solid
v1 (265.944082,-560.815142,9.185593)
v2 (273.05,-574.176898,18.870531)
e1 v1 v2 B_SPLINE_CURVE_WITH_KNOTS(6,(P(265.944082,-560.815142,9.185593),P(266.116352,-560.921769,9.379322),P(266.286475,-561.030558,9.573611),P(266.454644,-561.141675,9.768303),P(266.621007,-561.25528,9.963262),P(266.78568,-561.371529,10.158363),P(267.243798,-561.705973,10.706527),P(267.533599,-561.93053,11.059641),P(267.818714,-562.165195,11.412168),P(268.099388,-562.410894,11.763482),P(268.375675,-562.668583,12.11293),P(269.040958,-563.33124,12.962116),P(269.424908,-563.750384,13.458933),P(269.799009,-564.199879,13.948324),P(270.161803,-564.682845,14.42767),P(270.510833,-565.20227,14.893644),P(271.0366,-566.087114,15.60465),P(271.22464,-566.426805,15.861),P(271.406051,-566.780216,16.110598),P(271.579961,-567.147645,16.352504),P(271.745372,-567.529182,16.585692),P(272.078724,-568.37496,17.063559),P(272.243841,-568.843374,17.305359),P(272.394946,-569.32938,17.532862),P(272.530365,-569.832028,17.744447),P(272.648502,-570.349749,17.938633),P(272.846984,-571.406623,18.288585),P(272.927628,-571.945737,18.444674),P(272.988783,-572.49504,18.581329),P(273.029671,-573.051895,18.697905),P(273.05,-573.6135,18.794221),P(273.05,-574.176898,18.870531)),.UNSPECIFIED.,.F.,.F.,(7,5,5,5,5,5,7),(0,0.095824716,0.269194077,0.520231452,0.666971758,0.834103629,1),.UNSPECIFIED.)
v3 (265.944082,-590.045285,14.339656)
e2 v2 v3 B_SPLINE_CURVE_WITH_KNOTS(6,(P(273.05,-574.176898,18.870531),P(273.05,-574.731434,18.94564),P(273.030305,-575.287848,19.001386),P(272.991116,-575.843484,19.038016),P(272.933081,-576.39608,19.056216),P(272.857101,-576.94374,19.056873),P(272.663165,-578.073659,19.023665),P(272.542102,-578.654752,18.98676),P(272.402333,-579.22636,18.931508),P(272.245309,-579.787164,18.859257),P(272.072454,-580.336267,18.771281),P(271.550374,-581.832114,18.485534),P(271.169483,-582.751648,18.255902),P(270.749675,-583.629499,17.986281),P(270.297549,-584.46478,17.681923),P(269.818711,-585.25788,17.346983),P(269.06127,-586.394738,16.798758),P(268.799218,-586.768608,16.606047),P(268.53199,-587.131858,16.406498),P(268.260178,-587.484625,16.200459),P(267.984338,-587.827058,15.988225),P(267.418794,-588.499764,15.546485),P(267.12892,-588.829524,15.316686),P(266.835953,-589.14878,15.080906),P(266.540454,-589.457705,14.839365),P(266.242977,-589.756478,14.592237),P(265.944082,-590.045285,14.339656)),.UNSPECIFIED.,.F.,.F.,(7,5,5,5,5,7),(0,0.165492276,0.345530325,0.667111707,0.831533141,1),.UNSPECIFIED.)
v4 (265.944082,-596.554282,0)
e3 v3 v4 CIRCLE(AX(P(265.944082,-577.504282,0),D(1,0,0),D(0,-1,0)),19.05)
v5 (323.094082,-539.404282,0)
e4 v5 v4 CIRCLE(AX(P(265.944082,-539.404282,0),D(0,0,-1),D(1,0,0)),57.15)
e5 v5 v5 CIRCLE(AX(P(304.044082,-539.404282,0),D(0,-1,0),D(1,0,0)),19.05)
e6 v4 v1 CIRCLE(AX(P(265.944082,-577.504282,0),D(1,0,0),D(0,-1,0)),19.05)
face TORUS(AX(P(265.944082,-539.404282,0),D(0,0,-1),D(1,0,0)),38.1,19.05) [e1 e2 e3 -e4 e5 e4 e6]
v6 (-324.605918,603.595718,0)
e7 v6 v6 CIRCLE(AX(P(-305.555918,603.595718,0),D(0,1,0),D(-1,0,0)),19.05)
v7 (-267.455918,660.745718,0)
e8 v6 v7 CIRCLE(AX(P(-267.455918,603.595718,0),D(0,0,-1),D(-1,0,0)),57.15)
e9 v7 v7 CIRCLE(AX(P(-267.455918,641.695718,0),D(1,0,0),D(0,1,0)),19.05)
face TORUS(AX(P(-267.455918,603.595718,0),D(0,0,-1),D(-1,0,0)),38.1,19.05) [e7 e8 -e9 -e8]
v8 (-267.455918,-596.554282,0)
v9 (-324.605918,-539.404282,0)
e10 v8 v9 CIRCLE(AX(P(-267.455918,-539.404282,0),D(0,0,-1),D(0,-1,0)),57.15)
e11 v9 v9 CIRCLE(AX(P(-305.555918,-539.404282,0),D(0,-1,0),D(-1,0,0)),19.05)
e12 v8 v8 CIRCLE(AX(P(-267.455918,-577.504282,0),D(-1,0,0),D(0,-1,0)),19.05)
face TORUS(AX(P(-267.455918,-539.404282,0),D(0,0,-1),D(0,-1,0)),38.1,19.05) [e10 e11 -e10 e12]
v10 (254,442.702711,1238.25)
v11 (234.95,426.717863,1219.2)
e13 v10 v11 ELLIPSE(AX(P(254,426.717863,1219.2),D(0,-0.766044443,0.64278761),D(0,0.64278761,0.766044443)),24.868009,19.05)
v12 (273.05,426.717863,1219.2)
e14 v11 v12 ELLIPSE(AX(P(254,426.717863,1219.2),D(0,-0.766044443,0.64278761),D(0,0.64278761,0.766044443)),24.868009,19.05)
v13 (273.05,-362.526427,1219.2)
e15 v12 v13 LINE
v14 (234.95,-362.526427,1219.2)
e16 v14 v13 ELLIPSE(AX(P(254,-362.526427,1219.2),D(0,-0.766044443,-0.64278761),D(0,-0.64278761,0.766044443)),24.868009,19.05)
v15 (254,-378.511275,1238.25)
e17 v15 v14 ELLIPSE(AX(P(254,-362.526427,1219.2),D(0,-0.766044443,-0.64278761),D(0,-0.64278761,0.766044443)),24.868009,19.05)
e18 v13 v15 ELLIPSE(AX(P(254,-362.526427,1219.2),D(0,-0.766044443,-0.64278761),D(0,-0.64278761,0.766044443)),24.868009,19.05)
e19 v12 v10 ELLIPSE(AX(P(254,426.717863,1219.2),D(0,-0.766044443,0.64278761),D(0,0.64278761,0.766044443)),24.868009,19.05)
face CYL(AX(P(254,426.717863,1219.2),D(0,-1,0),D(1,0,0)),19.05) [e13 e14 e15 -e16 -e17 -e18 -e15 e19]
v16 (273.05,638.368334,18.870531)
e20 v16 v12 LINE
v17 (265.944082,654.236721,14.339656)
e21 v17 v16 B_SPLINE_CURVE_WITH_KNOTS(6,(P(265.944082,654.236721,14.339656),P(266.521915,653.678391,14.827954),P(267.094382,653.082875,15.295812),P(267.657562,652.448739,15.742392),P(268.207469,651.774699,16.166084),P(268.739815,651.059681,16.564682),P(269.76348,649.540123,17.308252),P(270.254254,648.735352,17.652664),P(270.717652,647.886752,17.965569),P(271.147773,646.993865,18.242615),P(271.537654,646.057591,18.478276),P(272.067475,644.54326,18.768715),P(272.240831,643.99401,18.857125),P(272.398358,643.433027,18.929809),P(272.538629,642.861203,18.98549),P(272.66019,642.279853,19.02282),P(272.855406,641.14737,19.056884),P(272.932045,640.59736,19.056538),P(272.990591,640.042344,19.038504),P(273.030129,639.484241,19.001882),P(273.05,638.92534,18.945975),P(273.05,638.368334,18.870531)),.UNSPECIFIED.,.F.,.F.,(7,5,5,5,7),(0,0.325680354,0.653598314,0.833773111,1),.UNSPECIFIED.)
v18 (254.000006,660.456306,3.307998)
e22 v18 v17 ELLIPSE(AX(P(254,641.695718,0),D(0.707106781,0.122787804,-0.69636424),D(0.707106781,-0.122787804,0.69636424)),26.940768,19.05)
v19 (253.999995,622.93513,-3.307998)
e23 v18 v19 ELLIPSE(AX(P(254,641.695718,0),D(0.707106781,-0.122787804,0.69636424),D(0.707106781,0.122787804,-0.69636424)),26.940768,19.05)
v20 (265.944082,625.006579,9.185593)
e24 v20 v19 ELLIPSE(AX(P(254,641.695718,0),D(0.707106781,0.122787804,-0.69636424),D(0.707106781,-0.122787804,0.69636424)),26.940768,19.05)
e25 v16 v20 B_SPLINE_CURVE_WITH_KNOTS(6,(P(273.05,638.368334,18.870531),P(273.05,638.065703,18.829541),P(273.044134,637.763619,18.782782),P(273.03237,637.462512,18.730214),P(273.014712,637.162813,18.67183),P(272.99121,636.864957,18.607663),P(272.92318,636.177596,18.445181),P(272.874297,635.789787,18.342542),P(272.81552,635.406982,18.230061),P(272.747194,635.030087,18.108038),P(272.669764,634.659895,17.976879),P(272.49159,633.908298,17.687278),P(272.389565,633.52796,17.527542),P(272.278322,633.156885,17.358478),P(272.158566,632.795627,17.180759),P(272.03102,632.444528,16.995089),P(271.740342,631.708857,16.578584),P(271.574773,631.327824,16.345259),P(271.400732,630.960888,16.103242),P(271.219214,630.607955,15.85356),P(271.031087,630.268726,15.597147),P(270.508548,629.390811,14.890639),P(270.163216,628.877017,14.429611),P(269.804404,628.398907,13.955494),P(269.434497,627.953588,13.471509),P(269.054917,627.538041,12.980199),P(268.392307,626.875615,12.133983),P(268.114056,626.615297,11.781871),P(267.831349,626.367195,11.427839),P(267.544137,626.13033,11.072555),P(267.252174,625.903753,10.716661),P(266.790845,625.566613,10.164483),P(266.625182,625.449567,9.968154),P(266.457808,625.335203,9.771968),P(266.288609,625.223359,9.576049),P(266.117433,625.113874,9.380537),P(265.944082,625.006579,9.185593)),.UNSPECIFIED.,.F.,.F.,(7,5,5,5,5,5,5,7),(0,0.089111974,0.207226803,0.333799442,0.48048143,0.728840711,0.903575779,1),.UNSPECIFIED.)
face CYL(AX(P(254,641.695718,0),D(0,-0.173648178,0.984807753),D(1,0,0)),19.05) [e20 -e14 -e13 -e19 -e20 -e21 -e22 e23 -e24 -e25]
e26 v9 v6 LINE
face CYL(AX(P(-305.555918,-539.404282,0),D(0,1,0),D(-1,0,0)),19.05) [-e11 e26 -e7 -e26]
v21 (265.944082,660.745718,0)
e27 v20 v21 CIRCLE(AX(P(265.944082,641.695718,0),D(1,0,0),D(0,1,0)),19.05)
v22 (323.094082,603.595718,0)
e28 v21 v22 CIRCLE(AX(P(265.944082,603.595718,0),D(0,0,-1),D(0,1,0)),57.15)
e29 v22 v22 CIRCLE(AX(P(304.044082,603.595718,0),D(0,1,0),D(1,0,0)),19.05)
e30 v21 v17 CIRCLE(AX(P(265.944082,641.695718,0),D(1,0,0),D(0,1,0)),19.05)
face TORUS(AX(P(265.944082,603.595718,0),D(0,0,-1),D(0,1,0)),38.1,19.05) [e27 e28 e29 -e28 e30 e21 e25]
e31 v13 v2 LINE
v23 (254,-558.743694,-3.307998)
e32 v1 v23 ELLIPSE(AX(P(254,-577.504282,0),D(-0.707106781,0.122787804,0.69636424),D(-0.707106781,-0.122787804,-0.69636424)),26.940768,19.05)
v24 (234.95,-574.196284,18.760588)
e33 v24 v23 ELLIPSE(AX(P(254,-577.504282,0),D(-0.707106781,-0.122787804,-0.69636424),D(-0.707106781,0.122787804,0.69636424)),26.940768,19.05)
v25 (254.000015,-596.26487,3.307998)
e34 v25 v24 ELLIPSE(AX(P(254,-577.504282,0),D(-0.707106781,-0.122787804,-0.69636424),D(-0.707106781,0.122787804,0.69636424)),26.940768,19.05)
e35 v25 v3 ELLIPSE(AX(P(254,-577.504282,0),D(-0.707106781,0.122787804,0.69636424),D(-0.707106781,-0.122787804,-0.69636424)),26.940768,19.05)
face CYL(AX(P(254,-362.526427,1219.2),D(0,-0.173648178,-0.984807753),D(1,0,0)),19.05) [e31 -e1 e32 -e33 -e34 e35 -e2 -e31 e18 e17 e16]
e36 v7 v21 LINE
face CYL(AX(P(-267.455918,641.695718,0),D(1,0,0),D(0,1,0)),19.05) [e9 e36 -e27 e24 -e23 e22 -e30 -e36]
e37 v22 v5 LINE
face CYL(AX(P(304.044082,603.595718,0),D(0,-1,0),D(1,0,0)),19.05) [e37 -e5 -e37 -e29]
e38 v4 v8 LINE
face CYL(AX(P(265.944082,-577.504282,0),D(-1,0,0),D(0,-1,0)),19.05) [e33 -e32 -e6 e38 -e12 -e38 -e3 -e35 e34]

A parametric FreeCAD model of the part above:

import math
import FreeCAD as App
import Part
import Sketcher
Q = App.Units.Quantity

doc = App.newDocument("Part")
body = doc.addObject("PartDesign::Body", "Body")

# Sketch on YZ plane
sketch1 = body.newObject("Sketcher::SketchObject", "Sketch")
sketch1.AttachmentSupport = (doc.getObject("YZ_Plane"), [""])
sketch1.MapMode = "FlatFace"
sketch1.addGeometry(Part.Circle(App.Vector(642, 0, 0), App.Vector(0, 0, 1), 19), False)
sketch1.addConstraint(Sketcher.Constraint("PointOnObject", 0, 3, -1))
sketch1.addConstraint(Sketcher.Constraint("Diameter", 0, Q("1.5 in")))
sketch1.addConstraint(Sketcher.Constraint("DistanceX", -1, 1, 0, 3, Q("641.695718 mm")))

# Sketch on XY plane
sketch2 = body.newObject("Sketcher::SketchObject", "Sketch001")
sketch2.AttachmentSupport = (doc.getObject("XY_Plane"), [""])
sketch2.MapMode = "FlatFace"
sketch2.addGeometry(Part.LineSegment(App.Vector(-267, 642, 0), App.Vector(266, 642, 0)), False)
sketch2.addGeometry(Part.ArcOfCircle(Part.Circle(App.Vector(266, 604, 0), App.Vector(0, 0, 1), 38), math.radians(0), math.radians(90)), False)
sketch2.addGeometry(Part.LineSegment(App.Vector(304, 604, 0), App.Vector(304, -539, 0)), False)
sketch2.addGeometry(Part.ArcOfCircle(Part.Circle(App.Vector(266, -539, 0), App.Vector(0, 0, 1), 38), math.radians(-90), math.radians(0)), False)
sketch2.addGeometry(Part.LineSegment(App.Vector(266, -578, 0), App.Vector(-267, -578, 0)), False)
sketch2.addGeometry(Part.ArcOfCircle(Part.Circle(App.Vector(-267, -539, 0), App.Vector(0, 0, 1), 38), math.radians(180), math.radians(270)), False)
sketch2.addGeometry(Part.LineSegment(App.Vector(-306, -539, 0), App.Vector(-306, 604, 0)), False)
sketch2.addGeometry(Part.ArcOfCircle(Part.Circle(App.Vector(-267, 604, 0), App.Vector(0, 0, 1), 38), math.radians(90), math.radians(180)), False)
sketch2.addConstraint(Sketcher.Constraint("Tangent", 0, 2, 1, 2))
sketch2.addConstraint(Sketcher.Constraint("Tangent", 1, 1, 2, 1))
sketch2.addConstraint(Sketcher.Constraint("Tangent", 2, 2, 3, 2))
sketch2.addConstraint(Sketcher.Constraint("Tangent", 3, 1, 4, 1))
sketch2.addConstraint(Sketcher.Constraint("Tangent", 4, 2, 5, 2))
sketch2.addConstraint(Sketcher.Constraint("Tangent", 5, 1, 6, 1))
sketch2.addConstraint(Sketcher.Constraint("Tangent", 6, 2, 7, 2))
sketch2.addConstraint(Sketcher.Constraint("Tangent", 7, 1, 0, 1))
sketch2.addConstraint(Sketcher.Constraint("Horizontal", 0))
sketch2.addConstraint(Sketcher.Constraint("Vertical", 2))
sketch2.addConstraint(Sketcher.Constraint("Horizontal", 4))
sketch2.addConstraint(Sketcher.Constraint("Vertical", 6))
sketch2.addConstraint(Sketcher.Constraint("Equal", 1, 3))
sketch2.addConstraint(Sketcher.Constraint("Equal", 3, 5))
sketch2.addConstraint(Sketcher.Constraint("Equal", 5, 7))
sketch2.addConstraint(Sketcher.Constraint("Radius", 1, Q("1.5 in")))
sketch2.addConstraint(Sketcher.Constraint("DistanceX", 0, 1, 0, 2, Q("21 in")))
sketch2.addConstraint(Sketcher.Constraint("DistanceY", 2, 2, 2, 1, Q("45 in")))
sketch2.addConstraint(Sketcher.Constraint("DistanceY", -1, 1, 1, 3, Q("603.595718 mm")))
sketch2.addConstraint(Sketcher.Constraint("DistanceX", -1, 1, 1, 3, Q("265.944082 mm")))
doc.recompute()

additivepipe = body.newObject("PartDesign::AdditivePipe", "AdditivePipe")
additivepipe.Profile = sketch1
additivepipe.Spine = (sketch2, ["Edge1", "Edge2", "Edge3", "Edge4", "Edge5", "Edge6", "Edge7", "Edge8"])

# Sketch on XZ plane
sketch3 = body.newObject("Sketcher::SketchObject", "Sketch002")
sketch3.AttachmentSupport = (doc.getObject("XZ_Plane"), [""])
sketch3.MapMode = "FlatFace"
sketch3.addGeometry(Part.Circle(App.Vector(254, 1219, 0), App.Vector(0, 0, 1), 19), False)
sketch3.addConstraint(Sketcher.Constraint("Diameter", 0, Q("1.5 in")))
sketch3.addConstraint(Sketcher.Constraint("DistanceX", -1, 1, 0, 3, Q("10 in")))
sketch3.addConstraint(Sketcher.Constraint("DistanceY", -1, 1, 0, 3, Q("48 in")))

# Sketch on YZ plane
sketch4 = body.newObject("Sketcher::SketchObject", "Sketch003")
sketch4.AttachmentSupport = (doc.getObject("YZ_Plane"), [""])
sketch4.MapMode = "FlatFace"
sketch4.AttachmentOffset = App.Placement(App.Vector(0, 0, 10 * 25.4), App.Rotation())
sketch4.addGeometry(Part.LineSegment(App.Vector(642, 0, 0), App.Vector(427, 1219, 0)), False)
sketch4.addGeometry(Part.LineSegment(App.Vector(427, 1219, 0), App.Vector(-363, 1219, 0)), False)
sketch4.addGeometry(Part.LineSegment(App.Vector(-363, 1219, 0), App.Vector(-578, 0, 0)), False)
sketch4.addConstraint(Sketcher.Constraint("Coincident", 0, 2, 1, 1))
sketch4.addConstraint(Sketcher.Constraint("Coincident", 1, 2, 2, 1))
sketch4.addConstraint(Sketcher.Constraint("Horizontal", 1))
sketch4.addConstraint(Sketcher.Constraint("PointOnObject", 0, 1, -1))
sketch4.addConstraint(Sketcher.Constraint("PointOnObject", 2, 2, -1))
sketch4.addConstraint(Sketcher.Constraint("Equal", 0, 2))
sketch4.addConstraint(Sketcher.Constraint("DistanceY", -1, 1, 0, 2, Q("48 in")))
sketch4.addConstraint(Sketcher.Constraint("Angle", 0, Q("100 deg")))
sketch4.addConstraint(Sketcher.Constraint("DistanceX", 2, 2, 0, 1, Q("48 in")))
sketch4.addConstraint(Sketcher.Constraint("DistanceX", -1, 1, 0, 1, Q("641.695718 mm")))
doc.recompute()

additivepipe2 = body.newObject("PartDesign::AdditivePipe", "AdditivePipe001")
additivepipe2.Profile = sketch3
additivepipe2.Spine = (sketch4, ["Edge1", "Edge2", "Edge3"])
additivepipe2.Transition = "Right corner"

doc.recompute()
